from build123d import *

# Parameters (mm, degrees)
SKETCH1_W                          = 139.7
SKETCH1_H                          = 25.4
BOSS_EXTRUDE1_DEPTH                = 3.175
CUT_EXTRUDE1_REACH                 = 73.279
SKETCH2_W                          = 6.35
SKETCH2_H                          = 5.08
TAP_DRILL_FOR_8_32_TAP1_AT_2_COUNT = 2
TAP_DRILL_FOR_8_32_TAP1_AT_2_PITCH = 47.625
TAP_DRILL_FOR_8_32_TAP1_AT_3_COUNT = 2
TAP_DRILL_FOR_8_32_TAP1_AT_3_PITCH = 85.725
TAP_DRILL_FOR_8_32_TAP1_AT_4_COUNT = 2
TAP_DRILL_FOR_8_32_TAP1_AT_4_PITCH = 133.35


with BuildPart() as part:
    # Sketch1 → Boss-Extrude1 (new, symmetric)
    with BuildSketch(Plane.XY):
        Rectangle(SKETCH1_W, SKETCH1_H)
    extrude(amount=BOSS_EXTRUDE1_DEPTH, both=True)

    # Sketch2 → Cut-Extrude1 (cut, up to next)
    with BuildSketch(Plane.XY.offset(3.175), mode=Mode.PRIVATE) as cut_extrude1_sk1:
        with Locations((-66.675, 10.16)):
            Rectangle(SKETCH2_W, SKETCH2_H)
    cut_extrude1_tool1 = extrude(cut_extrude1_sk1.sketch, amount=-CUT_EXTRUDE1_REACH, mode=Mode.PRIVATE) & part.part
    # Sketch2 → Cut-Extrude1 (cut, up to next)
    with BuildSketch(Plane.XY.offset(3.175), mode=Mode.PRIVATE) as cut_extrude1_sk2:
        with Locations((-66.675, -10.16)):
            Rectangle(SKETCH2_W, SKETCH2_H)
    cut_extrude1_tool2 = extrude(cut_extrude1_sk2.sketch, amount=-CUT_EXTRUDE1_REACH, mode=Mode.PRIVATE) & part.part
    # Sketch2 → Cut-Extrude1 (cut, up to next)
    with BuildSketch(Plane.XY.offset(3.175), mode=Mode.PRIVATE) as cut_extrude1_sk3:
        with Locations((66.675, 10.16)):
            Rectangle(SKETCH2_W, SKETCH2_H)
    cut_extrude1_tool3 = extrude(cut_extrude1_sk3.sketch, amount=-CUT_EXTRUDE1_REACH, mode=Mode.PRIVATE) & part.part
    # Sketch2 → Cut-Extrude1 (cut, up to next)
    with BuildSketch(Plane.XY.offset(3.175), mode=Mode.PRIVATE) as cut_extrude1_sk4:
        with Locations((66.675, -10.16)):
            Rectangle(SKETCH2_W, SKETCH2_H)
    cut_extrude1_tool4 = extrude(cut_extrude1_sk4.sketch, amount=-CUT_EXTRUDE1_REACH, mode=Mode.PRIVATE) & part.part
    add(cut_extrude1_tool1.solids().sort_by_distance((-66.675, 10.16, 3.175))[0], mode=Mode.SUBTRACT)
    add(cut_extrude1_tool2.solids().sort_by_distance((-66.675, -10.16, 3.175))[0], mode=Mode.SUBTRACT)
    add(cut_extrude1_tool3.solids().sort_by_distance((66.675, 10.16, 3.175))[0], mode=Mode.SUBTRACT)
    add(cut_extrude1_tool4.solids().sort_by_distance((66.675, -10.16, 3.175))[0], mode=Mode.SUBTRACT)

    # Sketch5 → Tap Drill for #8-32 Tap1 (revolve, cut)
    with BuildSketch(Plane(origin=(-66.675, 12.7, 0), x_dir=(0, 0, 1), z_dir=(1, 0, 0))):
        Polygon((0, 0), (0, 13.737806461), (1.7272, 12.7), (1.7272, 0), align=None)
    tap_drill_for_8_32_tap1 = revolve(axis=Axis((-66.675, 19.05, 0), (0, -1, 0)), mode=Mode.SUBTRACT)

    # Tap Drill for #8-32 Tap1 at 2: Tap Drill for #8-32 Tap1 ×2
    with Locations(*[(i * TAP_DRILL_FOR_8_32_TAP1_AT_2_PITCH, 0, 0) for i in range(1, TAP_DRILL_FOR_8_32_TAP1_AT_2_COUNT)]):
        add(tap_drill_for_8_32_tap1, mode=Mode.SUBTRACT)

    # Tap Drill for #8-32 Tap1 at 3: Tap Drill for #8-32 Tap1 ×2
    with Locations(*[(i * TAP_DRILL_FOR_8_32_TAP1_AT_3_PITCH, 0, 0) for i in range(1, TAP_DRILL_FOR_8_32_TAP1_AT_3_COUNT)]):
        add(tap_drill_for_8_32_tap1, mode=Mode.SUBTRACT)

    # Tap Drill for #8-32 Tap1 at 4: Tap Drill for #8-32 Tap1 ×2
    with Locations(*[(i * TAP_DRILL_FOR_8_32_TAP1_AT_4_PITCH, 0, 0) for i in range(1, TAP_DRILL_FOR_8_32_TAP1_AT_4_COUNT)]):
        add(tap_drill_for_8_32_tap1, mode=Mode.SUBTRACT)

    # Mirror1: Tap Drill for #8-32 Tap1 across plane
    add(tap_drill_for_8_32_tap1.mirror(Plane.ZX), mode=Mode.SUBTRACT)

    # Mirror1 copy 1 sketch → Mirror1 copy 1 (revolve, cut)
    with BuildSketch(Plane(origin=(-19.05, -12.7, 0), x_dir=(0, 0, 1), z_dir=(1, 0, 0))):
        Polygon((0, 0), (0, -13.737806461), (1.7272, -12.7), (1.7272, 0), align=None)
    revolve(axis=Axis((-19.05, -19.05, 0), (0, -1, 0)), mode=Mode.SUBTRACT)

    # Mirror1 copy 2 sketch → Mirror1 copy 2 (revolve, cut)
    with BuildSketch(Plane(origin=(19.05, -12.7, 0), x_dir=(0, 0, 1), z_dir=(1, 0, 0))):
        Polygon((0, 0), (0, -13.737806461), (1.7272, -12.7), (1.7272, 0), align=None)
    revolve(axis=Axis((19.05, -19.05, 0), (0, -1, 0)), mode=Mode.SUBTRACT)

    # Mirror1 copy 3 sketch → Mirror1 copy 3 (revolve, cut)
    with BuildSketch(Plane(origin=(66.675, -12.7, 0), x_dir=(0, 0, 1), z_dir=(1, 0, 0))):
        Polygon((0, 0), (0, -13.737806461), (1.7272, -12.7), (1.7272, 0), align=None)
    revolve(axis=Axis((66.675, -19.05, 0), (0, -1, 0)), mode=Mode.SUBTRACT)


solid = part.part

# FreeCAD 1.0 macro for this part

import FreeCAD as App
import Part
import Sketcher
Q = App.Units.Quantity

doc = App.newDocument("Part")
params = doc.addObject("Spreadsheet::Sheet", "Params")
for row, (alias, value) in enumerate([
    ("sketch1_height", "1 in"),
    ("sketch1_width", "5.5 in"),
    ("pad1_length", "0.25 in"),
    ("sketch2_height", "0.2 in"),
    ("sketch2_width", "0.25 in"),
    ("sketch3_height", "0.2 in"),
    ("sketch3_width", "0.25 in"),
    ("sketch4_height", "0.2 in"),
    ("sketch4_width", "0.25 in"),
    ("sketch5_height", "0.2 in"),
    ("sketch5_width", "0.25 in"),
    ("sketch6_width", "0.5 in"),
    ("sketch6_height", "0.068 in"),
    ("groove_angle", "360 deg"),
    ("linearpattern_pitch", "1.875 in"),
    ("linearpattern2_pitch", "3.375 in"),
    ("linearpattern3_pitch", "5.25 in"),
    ("sketch7_width", "0.5 in"),
    ("sketch7_height", "0.068 in"),
    ("groove2_angle", "360 deg"),
    ("sketch8_width", "0.5 in"),
    ("sketch8_height", "0.068 in"),
    ("groove3_angle", "360 deg"),
    ("sketch9_width", "0.5 in"),
    ("sketch9_height", "0.068 in"),
    ("groove4_angle", "360 deg"),
], start=1):
    params.set(f"A{row}", alias)
    params.set(f"B{row}", "=" + value)
    params.setAlias(f"B{row}", alias)

body = doc.addObject("PartDesign::Body", "Body")

# Sketch on XY plane
sketch1 = doc.addObject("Sketcher::SketchObject", "Sketch")
body.addObject(sketch1)
sketch1.AttachmentSupport = (doc.XY_Plane, [""])
sketch1.MapMode = "FlatFace"
sketch1.addGeometry([
    Part.LineSegment(App.Vector(-70, 13, 0), App.Vector(-70, -13, 0)),
    Part.LineSegment(App.Vector(-70, -13, 0), App.Vector(70, -13, 0)),
    Part.LineSegment(App.Vector(70, -13, 0), App.Vector(70, 13, 0)),
    Part.LineSegment(App.Vector(70, 13, 0), App.Vector(-70, 13, 0)),
], False)
sketch1.addConstraint([
    Sketcher.Constraint("Coincident", 0, 2, 1, 1),
    Sketcher.Constraint("Coincident", 1, 2, 2, 1),
    Sketcher.Constraint("Coincident", 2, 2, 3, 1),
    Sketcher.Constraint("Coincident", 3, 2, 0, 1),
    Sketcher.Constraint("Vertical", 0),
    Sketcher.Constraint("Horizontal", 1),
    Sketcher.Constraint("Vertical", 2),
    Sketcher.Constraint("Horizontal", 3),
    Sketcher.Constraint("Symmetric", 0, 2, 2, 2, -1, 1),
    Sketcher.Constraint("DistanceY", 0, 2, 0, 1, Q("1 in")),
    Sketcher.Constraint("DistanceX", 1, 1, 1, 2, Q("5.5 in")),
])
sketch1.setExpression("Constraints[9]", "Params.sketch1_height")
sketch1.setExpression("Constraints[10]", "Params.sketch1_width")
pad1 = doc.addObject("PartDesign::Pad", "Pad")
body.addObject(pad1)
pad1.Profile = sketch1
pad1.setExpression("Length", "Params.pad1_length")
pad1.Midplane = True

# Sketch on XY plane
sketch2 = doc.addObject("Sketcher::SketchObject", "Sketch001")
body.addObject(sketch2)
sketch2.AttachmentSupport = (doc.XY_Plane, [""])
sketch2.MapMode = "FlatFace"
sketch2.AttachmentOffset = App.Placement(App.Vector(0, 0, 0.125 * 25.4), App.Rotation())
sketch2.addGeometry([
    Part.LineSegment(App.Vector(-70, 13, 0), App.Vector(-70, 8, 0)),
    Part.LineSegment(App.Vector(-70, 8, 0), App.Vector(-64, 8, 0)),
    Part.LineSegment(App.Vector(-64, 8, 0), App.Vector(-64, 13, 0)),
    Part.LineSegment(App.Vector(-64, 13, 0), App.Vector(-70, 13, 0)),
], False)
sketch2.addConstraint([
    Sketcher.Constraint("Coincident", 0, 2, 1, 1),
    Sketcher.Constraint("Coincident", 1, 2, 2, 1),
    Sketcher.Constraint("Coincident", 2, 2, 3, 1),
    Sketcher.Constraint("Coincident", 3, 2, 0, 1),
    Sketcher.Constraint("Vertical", 0),
    Sketcher.Constraint("Horizontal", 1),
    Sketcher.Constraint("Vertical", 2),
    Sketcher.Constraint("Horizontal", 3),
    Sketcher.Constraint("DistanceY", 0, 2, 0, 1, Q("0.2 in")),
    Sketcher.Constraint("DistanceX", 1, 1, 1, 2, Q("0.25 in")),
    Sketcher.Constraint("DistanceY", -1, 1, 0, 2, Q("0.3 in")),
    Sketcher.Constraint("DistanceX", 1, 2, -1, 1, Q("2.5 in")),
])
sketch2.setExpression("Constraints[8]", "Params.sketch2_height")
sketch2.setExpression("Constraints[9]", "Params.sketch2_width")
pocket1 = doc.addObject("PartDesign::Pocket", "Pocket")
body.addObject(pocket1)
pocket1.Profile = sketch2
pocket1.Type = "UpToFirst"

# Sketch on XY plane
sketch3 = doc.addObject("Sketcher::SketchObject", "Sketch002")
body.addObject(sketch3)
sketch3.AttachmentSupport = (doc.XY_Plane, [""])
sketch3.MapMode = "FlatFace"
sketch3.AttachmentOffset = App.Placement(App.Vector(0, 0, 0.125 * 25.4), App.Rotation())
sketch3.addGeometry([
    Part.LineSegment(App.Vector(-70, -8, 0), App.Vector(-70, -13, 0)),
    Part.LineSegment(App.Vector(-70, -13, 0), App.Vector(-64, -13, 0)),
    Part.LineSegment(App.Vector(-64, -13, 0), App.Vector(-64, -8, 0)),
    Part.LineSegment(App.Vector(-64, -8, 0), App.Vector(-70, -8, 0)),
], False)
sketch3.addConstraint([
    Sketcher.Constraint("Coincident", 0, 2, 1, 1),
    Sketcher.Constraint("Coincident", 1, 2, 2, 1),
    Sketcher.Constraint("Coincident", 2, 2, 3, 1),
    Sketcher.Constraint("Coincident", 3, 2, 0, 1),
    Sketcher.Constraint("Vertical", 0),
    Sketcher.Constraint("Horizontal", 1),
    Sketcher.Constraint("Vertical", 2),
    Sketcher.Constraint("Horizontal", 3),
    Sketcher.Constraint("DistanceY", 0, 2, 0, 1, Q("0.2 in")),
    Sketcher.Constraint("DistanceX", 1, 1, 1, 2, Q("0.25 in")),
    Sketcher.Constraint("DistanceY", 0, 2, -1, 1, Q("0.5 in")),
    Sketcher.Constraint("DistanceX", 1, 2, -1, 1, Q("2.5 in")),
])
sketch3.setExpression("Constraints[8]", "Params.sketch3_height")
sketch3.setExpression("Constraints[9]", "Params.sketch3_width")
pocket2 = doc.addObject("PartDesign::Pocket", "Pocket001")
body.addObject(pocket2)
pocket2.Profile = sketch3
pocket2.Type = "UpToFirst"

# Sketch on XY plane
sketch4 = doc.addObject("Sketcher::SketchObject", "Sketch003")
body.addObject(sketch4)
sketch4.AttachmentSupport = (doc.XY_Plane, [""])
sketch4.MapMode = "FlatFace"
sketch4.AttachmentOffset = App.Placement(App.Vector(0, 0, 0.125 * 25.4), App.Rotation())
sketch4.addGeometry([
    Part.LineSegment(App.Vector(64, 13, 0), App.Vector(64, 8, 0)),
    Part.LineSegment(App.Vector(64, 8, 0), App.Vector(70, 8, 0)),
    Part.LineSegment(App.Vector(70, 8, 0), App.Vector(70, 13, 0)),
    Part.LineSegment(App.Vector(70, 13, 0), App.Vector(64, 13, 0)),
], False)
sketch4.addConstraint([
    Sketcher.Constraint("Coincident", 0, 2, 1, 1),
    Sketcher.Constraint("Coincident", 1, 2, 2, 1),
    Sketcher.Constraint("Coincident", 2, 2, 3, 1),
    Sketcher.Constraint("Coincident", 3, 2, 0, 1),
    Sketcher.Constraint("Vertical", 0),
    Sketcher.Constraint("Horizontal", 1),
    Sketcher.Constraint("Vertical", 2),
    Sketcher.Constraint("Horizontal", 3),
    Sketcher.Constraint("DistanceY", 0, 2, 0, 1, Q("0.2 in")),
    Sketcher.Constraint("DistanceX", 1, 1, 1, 2, Q("0.25 in")),
    Sketcher.Constraint("DistanceX", -1, 1, 0, 2, Q("2.5 in")),
    Sketcher.Constraint("DistanceY", -1, 1, 0, 2, Q("0.3 in")),
])
sketch4.setExpression("Constraints[8]", "Params.sketch4_height")
sketch4.setExpression("Constraints[9]", "Params.sketch4_width")
pocket3 = doc.addObject("PartDesign::Pocket", "Pocket002")
body.addObject(pocket3)
pocket3.Profile = sketch4
pocket3.Type = "UpToFirst"

# Sketch on XY plane
sketch5 = doc.addObject("Sketcher::SketchObject", "Sketch004")
body.addObject(sketch5)
sketch5.AttachmentSupport = (doc.XY_Plane, [""])
sketch5.MapMode = "FlatFace"
sketch5.AttachmentOffset = App.Placement(App.Vector(0, 0, 0.125 * 25.4), App.Rotation())
sketch5.addGeometry([
    Part.LineSegment(App.Vector(64, -8, 0), App.Vector(64, -13, 0)),
    Part.LineSegment(App.Vector(64, -13, 0), App.Vector(70, -13, 0)),
    Part.LineSegment(App.Vector(70, -13, 0), App.Vector(70, -8, 0)),
    Part.LineSegment(App.Vector(70, -8, 0), App.Vector(64, -8, 0)),
], False)
sketch5.addConstraint([
    Sketcher.Constraint("Coincident", 0, 2, 1, 1),
    Sketcher.Constraint("Coincident", 1, 2, 2, 1),
    Sketcher.Constraint("Coincident", 2, 2, 3, 1),
    Sketcher.Constraint("Coincident", 3, 2, 0, 1),
    Sketcher.Constraint("Vertical", 0),
    Sketcher.Constraint("Horizontal", 1),
    Sketcher.Constraint("Vertical", 2),
    Sketcher.Constraint("Horizontal", 3),
    Sketcher.Constraint("DistanceY", 0, 2, 0, 1, Q("0.2 in")),
    Sketcher.Constraint("DistanceX", 1, 1, 1, 2, Q("0.25 in")),
    Sketcher.Constraint("DistanceX", -1, 1, 0, 2, Q("2.5 in")),
    Sketcher.Constraint("DistanceY", 0, 2, -1, 1, Q("0.5 in")),
])
sketch5.setExpression("Constraints[8]", "Params.sketch5_height")
sketch5.setExpression("Constraints[9]", "Params.sketch5_width")
pocket4 = doc.addObject("PartDesign::Pocket", "Pocket003")
body.addObject(pocket4)
pocket4.Profile = sketch5
pocket4.Type = "UpToFirst"

# Sketch on YZ plane
sketch6 = doc.addObject("Sketcher::SketchObject", "Sketch005")
body.addObject(sketch6)
sketch6.AttachmentSupport = (doc.YZ_Plane, [""])
sketch6.MapMode = "FlatFace"
sketch6.AttachmentOffset = App.Placement(App.Vector(0, 0, -2.625 * 25.4), App.Rotation())
sketch6.addGeometry([
    Part.LineSegment(App.Vector(-1, 0, 0), App.Vector(12.7, 0, 0)),
    Part.LineSegment(App.Vector(12.7, 0, 0), App.Vector(12.7, 1.7, 0)),
    Part.LineSegment(App.Vector(12.7, 1.7, 0), App.Vector(0, 1.7, 0)),
    Part.LineSegment(App.Vector(0, 1.7, 0), App.Vector(-1, 0, 0)),
], False)
sketch6.addConstraint([
    Sketcher.Constraint("Coincident", 0, 2, 1, 1),
    Sketcher.Constraint("Coincident", 1, 2, 2, 1),
    Sketcher.Constraint("Coincident", 2, 2, 3, 1),
    Sketcher.Constraint("Coincident", 3, 2, 0, 1),
    Sketcher.Constraint("Horizontal", 0),
    Sketcher.Constraint("Vertical", 1),
    Sketcher.Constraint("Horizontal", 2),
    Sketcher.Constraint("PointOnObject", 0, 2, -1),
    Sketcher.Constraint("PointOnObject", 2, 2, -2),
    Sketcher.Constraint("DistanceX", 2, 2, 2, 1, Q("0.5 in")),
    Sketcher.Constraint("Angle", 3, Q("-121 deg")),
    Sketcher.Constraint("DistanceY", 1, 1, 1, 2, Q("0.068 in")),
])
sketch6.setExpression("Constraints[9]", "Params.sketch6_width")
sketch6.setExpression("Constraints[11]", "Params.sketch6_height")
groove = doc.addObject("PartDesign::Groove", "Groove")
body.addObject(groove)
groove.Profile = sketch6
groove.ReferenceAxis = (sketch6, ["H_Axis"])
groove.setExpression("Angle", "Params.groove_angle")
doc.recompute()

linearpattern = doc.addObject("PartDesign::LinearPattern", "LinearPattern")
body.addObject(linearpattern)
linearpattern.Originals = [groove]
linearpattern.Direction = (doc.X_Axis, [""])
linearpattern.Mode = "offset"
linearpattern.setExpression("Offset", "Params.linearpattern_pitch")
linearpattern.Occurrences = 2
body.Tip = linearpattern
doc.recompute()

linearpattern2 = doc.addObject("PartDesign::LinearPattern", "LinearPattern001")
body.addObject(linearpattern2)
linearpattern2.Originals = [groove]
linearpattern2.Direction = (doc.X_Axis, [""])
linearpattern2.Mode = "offset"
linearpattern2.setExpression("Offset", "Params.linearpattern2_pitch")
linearpattern2.Occurrences = 2
body.Tip = linearpattern2
doc.recompute()

linearpattern3 = doc.addObject("PartDesign::LinearPattern", "LinearPattern002")
body.addObject(linearpattern3)
linearpattern3.Originals = [groove]
linearpattern3.Direction = (doc.X_Axis, [""])
linearpattern3.Mode = "offset"
linearpattern3.setExpression("Offset", "Params.linearpattern3_pitch")
linearpattern3.Occurrences = 2
body.Tip = linearpattern3
doc.recompute()

mirrored = doc.addObject("PartDesign::Mirrored", "Mirrored")
body.addObject(mirrored)
mirrored.Originals = [groove]
mirrored.MirrorPlane = (doc.XZ_Plane, [""])
body.Tip = mirrored

# Sketch on YZ plane
sketch7 = doc.addObject("Sketcher::SketchObject", "Sketch006")
body.addObject(sketch7)
sketch7.AttachmentSupport = (doc.YZ_Plane, [""])
sketch7.MapMode = "FlatFace"
sketch7.AttachmentOffset = App.Placement(App.Vector(0, 0, -0.75 * 25.4), App.Rotation())
sketch7.addGeometry([
    Part.LineSegment(App.Vector(-12.7, 0, 0), App.Vector(1, 0, 0)),
    Part.LineSegment(App.Vector(1, 0, 0), App.Vector(0, 1.7, 0)),
    Part.LineSegment(App.Vector(0, 1.7, 0), App.Vector(-12.7, 1.7, 0)),
    Part.LineSegment(App.Vector(-12.7, 1.7, 0), App.Vector(-12.7, 0, 0)),
], False)
sketch7.addConstraint([
    Sketcher.Constraint("Coincident", 0, 2, 1, 1),
    Sketcher.Constraint("Coincident", 1, 2, 2, 1),
    Sketcher.Constraint("Coincident", 2, 2, 3, 1),
    Sketcher.Constraint("Coincident", 3, 2, 0, 1),
    Sketcher.Constraint("Horizontal", 0),
    Sketcher.Constraint("Horizontal", 2),
    Sketcher.Constraint("Vertical", 3),
    Sketcher.Constraint("PointOnObject", 0, 2, -1),
    Sketcher.Constraint("PointOnObject", 1, 2, -2),
    Sketcher.Constraint("DistanceX", 2, 2, 2, 1, Q("0.5 in")),
    Sketcher.Constraint("Angle", 1, Q("121 deg")),
    Sketcher.Constraint("DistanceY", 3, 2, 3, 1, Q("0.068 in")),
])
sketch7.setExpression("Constraints[9]", "Params.sketch7_width")
sketch7.setExpression("Constraints[11]", "Params.sketch7_height")
groove2 = doc.addObject("PartDesign::Groove", "Groove001")
body.addObject(groove2)
groove2.Profile = sketch7
groove2.ReferenceAxis = (sketch7, ["H_Axis"])
groove2.setExpression("Angle", "Params.groove2_angle")

# Sketch on YZ plane
sketch8 = doc.addObject("Sketcher::SketchObject", "Sketch007")
body.addObject(sketch8)
sketch8.AttachmentSupport = (doc.YZ_Plane, [""])
sketch8.MapMode = "FlatFace"
sketch8.AttachmentOffset = App.Placement(App.Vector(0, 0, 0.75 * 25.4), App.Rotation())
sketch8.addGeometry([
    Part.LineSegment(App.Vector(-12.7, 0, 0), App.Vector(1, 0, 0)),
    Part.LineSegment(App.Vector(1, 0, 0), App.Vector(0, 1.7, 0)),
    Part.LineSegment(App.Vector(0, 1.7, 0), App.Vector(-12.7, 1.7, 0)),
    Part.LineSegment(App.Vector(-12.7, 1.7, 0), App.Vector(-12.7, 0, 0)),
], False)
sketch8.addConstraint([
    Sketcher.Constraint("Coincident", 0, 2, 1, 1),
    Sketcher.Constraint("Coincident", 1, 2, 2, 1),
    Sketcher.Constraint("Coincident", 2, 2, 3, 1),
    Sketcher.Constraint("Coincident", 3, 2, 0, 1),
    Sketcher.Constraint("Horizontal", 0),
    Sketcher.Constraint("Horizontal", 2),
    Sketcher.Constraint("Vertical", 3),
    Sketcher.Constraint("PointOnObject", 0, 2, -1),
    Sketcher.Constraint("PointOnObject", 1, 2, -2),
    Sketcher.Constraint("DistanceX", 2, 2, 2, 1, Q("0.5 in")),
    Sketcher.Constraint("Angle", 1, Q("121 deg")),
    Sketcher.Constraint("DistanceY", 3, 2, 3, 1, Q("0.068 in")),
])
sketch8.setExpression("Constraints[9]", "Params.sketch8_width")
sketch8.setExpression("Constraints[11]", "Params.sketch8_height")
groove3 = doc.addObject("PartDesign::Groove", "Groove002")
body.addObject(groove3)
groove3.Profile = sketch8
groove3.ReferenceAxis = (sketch8, ["H_Axis"])
groove3.setExpression("Angle", "Params.groove3_angle")

# Sketch on YZ plane
sketch9 = doc.addObject("Sketcher::SketchObject", "Sketch008")
body.addObject(sketch9)
sketch9.AttachmentSupport = (doc.YZ_Plane, [""])
sketch9.MapMode = "FlatFace"
sketch9.AttachmentOffset = App.Placement(App.Vector(0, 0, 2.625 * 25.4), App.Rotation())
sketch9.addGeometry([
    Part.LineSegment(App.Vector(-12.7, 0, 0), App.Vector(1, 0, 0)),
    Part.LineSegment(App.Vector(1, 0, 0), App.Vector(0, 1.7, 0)),
    Part.LineSegment(App.Vector(0, 1.7, 0), App.Vector(-12.7, 1.7, 0)),
    Part.LineSegment(App.Vector(-12.7, 1.7, 0), App.Vector(-12.7, 0, 0)),
], False)
sketch9.addConstraint([
    Sketcher.Constraint("Coincident", 0, 2, 1, 1),
    Sketcher.Constraint("Coincident", 1, 2, 2, 1),
    Sketcher.Constraint("Coincident", 2, 2, 3, 1),
    Sketcher.Constraint("Coincident", 3, 2, 0, 1),
    Sketcher.Constraint("Horizontal", 0),
    Sketcher.Constraint("Horizontal", 2),
    Sketcher.Constraint("Vertical", 3),
    Sketcher.Constraint("PointOnObject", 0, 2, -1),
    Sketcher.Constraint("PointOnObject", 1, 2, -2),
    Sketcher.Constraint("DistanceX", 2, 2, 2, 1, Q("0.5 in")),
    Sketcher.Constraint("Angle", 1, Q("121 deg")),
    Sketcher.Constraint("DistanceY", 3, 2, 3, 1, Q("0.068 in")),
])
sketch9.setExpression("Constraints[9]", "Params.sketch9_width")
sketch9.setExpression("Constraints[11]", "Params.sketch9_height")
groove4 = doc.addObject("PartDesign::Groove", "Groove003")
body.addObject(groove4)
groove4.Profile = sketch9
groove4.ReferenceAxis = (sketch9, ["H_Axis"])
groove4.setExpression("Angle", "Params.groove4_angle")

doc.recompute()
